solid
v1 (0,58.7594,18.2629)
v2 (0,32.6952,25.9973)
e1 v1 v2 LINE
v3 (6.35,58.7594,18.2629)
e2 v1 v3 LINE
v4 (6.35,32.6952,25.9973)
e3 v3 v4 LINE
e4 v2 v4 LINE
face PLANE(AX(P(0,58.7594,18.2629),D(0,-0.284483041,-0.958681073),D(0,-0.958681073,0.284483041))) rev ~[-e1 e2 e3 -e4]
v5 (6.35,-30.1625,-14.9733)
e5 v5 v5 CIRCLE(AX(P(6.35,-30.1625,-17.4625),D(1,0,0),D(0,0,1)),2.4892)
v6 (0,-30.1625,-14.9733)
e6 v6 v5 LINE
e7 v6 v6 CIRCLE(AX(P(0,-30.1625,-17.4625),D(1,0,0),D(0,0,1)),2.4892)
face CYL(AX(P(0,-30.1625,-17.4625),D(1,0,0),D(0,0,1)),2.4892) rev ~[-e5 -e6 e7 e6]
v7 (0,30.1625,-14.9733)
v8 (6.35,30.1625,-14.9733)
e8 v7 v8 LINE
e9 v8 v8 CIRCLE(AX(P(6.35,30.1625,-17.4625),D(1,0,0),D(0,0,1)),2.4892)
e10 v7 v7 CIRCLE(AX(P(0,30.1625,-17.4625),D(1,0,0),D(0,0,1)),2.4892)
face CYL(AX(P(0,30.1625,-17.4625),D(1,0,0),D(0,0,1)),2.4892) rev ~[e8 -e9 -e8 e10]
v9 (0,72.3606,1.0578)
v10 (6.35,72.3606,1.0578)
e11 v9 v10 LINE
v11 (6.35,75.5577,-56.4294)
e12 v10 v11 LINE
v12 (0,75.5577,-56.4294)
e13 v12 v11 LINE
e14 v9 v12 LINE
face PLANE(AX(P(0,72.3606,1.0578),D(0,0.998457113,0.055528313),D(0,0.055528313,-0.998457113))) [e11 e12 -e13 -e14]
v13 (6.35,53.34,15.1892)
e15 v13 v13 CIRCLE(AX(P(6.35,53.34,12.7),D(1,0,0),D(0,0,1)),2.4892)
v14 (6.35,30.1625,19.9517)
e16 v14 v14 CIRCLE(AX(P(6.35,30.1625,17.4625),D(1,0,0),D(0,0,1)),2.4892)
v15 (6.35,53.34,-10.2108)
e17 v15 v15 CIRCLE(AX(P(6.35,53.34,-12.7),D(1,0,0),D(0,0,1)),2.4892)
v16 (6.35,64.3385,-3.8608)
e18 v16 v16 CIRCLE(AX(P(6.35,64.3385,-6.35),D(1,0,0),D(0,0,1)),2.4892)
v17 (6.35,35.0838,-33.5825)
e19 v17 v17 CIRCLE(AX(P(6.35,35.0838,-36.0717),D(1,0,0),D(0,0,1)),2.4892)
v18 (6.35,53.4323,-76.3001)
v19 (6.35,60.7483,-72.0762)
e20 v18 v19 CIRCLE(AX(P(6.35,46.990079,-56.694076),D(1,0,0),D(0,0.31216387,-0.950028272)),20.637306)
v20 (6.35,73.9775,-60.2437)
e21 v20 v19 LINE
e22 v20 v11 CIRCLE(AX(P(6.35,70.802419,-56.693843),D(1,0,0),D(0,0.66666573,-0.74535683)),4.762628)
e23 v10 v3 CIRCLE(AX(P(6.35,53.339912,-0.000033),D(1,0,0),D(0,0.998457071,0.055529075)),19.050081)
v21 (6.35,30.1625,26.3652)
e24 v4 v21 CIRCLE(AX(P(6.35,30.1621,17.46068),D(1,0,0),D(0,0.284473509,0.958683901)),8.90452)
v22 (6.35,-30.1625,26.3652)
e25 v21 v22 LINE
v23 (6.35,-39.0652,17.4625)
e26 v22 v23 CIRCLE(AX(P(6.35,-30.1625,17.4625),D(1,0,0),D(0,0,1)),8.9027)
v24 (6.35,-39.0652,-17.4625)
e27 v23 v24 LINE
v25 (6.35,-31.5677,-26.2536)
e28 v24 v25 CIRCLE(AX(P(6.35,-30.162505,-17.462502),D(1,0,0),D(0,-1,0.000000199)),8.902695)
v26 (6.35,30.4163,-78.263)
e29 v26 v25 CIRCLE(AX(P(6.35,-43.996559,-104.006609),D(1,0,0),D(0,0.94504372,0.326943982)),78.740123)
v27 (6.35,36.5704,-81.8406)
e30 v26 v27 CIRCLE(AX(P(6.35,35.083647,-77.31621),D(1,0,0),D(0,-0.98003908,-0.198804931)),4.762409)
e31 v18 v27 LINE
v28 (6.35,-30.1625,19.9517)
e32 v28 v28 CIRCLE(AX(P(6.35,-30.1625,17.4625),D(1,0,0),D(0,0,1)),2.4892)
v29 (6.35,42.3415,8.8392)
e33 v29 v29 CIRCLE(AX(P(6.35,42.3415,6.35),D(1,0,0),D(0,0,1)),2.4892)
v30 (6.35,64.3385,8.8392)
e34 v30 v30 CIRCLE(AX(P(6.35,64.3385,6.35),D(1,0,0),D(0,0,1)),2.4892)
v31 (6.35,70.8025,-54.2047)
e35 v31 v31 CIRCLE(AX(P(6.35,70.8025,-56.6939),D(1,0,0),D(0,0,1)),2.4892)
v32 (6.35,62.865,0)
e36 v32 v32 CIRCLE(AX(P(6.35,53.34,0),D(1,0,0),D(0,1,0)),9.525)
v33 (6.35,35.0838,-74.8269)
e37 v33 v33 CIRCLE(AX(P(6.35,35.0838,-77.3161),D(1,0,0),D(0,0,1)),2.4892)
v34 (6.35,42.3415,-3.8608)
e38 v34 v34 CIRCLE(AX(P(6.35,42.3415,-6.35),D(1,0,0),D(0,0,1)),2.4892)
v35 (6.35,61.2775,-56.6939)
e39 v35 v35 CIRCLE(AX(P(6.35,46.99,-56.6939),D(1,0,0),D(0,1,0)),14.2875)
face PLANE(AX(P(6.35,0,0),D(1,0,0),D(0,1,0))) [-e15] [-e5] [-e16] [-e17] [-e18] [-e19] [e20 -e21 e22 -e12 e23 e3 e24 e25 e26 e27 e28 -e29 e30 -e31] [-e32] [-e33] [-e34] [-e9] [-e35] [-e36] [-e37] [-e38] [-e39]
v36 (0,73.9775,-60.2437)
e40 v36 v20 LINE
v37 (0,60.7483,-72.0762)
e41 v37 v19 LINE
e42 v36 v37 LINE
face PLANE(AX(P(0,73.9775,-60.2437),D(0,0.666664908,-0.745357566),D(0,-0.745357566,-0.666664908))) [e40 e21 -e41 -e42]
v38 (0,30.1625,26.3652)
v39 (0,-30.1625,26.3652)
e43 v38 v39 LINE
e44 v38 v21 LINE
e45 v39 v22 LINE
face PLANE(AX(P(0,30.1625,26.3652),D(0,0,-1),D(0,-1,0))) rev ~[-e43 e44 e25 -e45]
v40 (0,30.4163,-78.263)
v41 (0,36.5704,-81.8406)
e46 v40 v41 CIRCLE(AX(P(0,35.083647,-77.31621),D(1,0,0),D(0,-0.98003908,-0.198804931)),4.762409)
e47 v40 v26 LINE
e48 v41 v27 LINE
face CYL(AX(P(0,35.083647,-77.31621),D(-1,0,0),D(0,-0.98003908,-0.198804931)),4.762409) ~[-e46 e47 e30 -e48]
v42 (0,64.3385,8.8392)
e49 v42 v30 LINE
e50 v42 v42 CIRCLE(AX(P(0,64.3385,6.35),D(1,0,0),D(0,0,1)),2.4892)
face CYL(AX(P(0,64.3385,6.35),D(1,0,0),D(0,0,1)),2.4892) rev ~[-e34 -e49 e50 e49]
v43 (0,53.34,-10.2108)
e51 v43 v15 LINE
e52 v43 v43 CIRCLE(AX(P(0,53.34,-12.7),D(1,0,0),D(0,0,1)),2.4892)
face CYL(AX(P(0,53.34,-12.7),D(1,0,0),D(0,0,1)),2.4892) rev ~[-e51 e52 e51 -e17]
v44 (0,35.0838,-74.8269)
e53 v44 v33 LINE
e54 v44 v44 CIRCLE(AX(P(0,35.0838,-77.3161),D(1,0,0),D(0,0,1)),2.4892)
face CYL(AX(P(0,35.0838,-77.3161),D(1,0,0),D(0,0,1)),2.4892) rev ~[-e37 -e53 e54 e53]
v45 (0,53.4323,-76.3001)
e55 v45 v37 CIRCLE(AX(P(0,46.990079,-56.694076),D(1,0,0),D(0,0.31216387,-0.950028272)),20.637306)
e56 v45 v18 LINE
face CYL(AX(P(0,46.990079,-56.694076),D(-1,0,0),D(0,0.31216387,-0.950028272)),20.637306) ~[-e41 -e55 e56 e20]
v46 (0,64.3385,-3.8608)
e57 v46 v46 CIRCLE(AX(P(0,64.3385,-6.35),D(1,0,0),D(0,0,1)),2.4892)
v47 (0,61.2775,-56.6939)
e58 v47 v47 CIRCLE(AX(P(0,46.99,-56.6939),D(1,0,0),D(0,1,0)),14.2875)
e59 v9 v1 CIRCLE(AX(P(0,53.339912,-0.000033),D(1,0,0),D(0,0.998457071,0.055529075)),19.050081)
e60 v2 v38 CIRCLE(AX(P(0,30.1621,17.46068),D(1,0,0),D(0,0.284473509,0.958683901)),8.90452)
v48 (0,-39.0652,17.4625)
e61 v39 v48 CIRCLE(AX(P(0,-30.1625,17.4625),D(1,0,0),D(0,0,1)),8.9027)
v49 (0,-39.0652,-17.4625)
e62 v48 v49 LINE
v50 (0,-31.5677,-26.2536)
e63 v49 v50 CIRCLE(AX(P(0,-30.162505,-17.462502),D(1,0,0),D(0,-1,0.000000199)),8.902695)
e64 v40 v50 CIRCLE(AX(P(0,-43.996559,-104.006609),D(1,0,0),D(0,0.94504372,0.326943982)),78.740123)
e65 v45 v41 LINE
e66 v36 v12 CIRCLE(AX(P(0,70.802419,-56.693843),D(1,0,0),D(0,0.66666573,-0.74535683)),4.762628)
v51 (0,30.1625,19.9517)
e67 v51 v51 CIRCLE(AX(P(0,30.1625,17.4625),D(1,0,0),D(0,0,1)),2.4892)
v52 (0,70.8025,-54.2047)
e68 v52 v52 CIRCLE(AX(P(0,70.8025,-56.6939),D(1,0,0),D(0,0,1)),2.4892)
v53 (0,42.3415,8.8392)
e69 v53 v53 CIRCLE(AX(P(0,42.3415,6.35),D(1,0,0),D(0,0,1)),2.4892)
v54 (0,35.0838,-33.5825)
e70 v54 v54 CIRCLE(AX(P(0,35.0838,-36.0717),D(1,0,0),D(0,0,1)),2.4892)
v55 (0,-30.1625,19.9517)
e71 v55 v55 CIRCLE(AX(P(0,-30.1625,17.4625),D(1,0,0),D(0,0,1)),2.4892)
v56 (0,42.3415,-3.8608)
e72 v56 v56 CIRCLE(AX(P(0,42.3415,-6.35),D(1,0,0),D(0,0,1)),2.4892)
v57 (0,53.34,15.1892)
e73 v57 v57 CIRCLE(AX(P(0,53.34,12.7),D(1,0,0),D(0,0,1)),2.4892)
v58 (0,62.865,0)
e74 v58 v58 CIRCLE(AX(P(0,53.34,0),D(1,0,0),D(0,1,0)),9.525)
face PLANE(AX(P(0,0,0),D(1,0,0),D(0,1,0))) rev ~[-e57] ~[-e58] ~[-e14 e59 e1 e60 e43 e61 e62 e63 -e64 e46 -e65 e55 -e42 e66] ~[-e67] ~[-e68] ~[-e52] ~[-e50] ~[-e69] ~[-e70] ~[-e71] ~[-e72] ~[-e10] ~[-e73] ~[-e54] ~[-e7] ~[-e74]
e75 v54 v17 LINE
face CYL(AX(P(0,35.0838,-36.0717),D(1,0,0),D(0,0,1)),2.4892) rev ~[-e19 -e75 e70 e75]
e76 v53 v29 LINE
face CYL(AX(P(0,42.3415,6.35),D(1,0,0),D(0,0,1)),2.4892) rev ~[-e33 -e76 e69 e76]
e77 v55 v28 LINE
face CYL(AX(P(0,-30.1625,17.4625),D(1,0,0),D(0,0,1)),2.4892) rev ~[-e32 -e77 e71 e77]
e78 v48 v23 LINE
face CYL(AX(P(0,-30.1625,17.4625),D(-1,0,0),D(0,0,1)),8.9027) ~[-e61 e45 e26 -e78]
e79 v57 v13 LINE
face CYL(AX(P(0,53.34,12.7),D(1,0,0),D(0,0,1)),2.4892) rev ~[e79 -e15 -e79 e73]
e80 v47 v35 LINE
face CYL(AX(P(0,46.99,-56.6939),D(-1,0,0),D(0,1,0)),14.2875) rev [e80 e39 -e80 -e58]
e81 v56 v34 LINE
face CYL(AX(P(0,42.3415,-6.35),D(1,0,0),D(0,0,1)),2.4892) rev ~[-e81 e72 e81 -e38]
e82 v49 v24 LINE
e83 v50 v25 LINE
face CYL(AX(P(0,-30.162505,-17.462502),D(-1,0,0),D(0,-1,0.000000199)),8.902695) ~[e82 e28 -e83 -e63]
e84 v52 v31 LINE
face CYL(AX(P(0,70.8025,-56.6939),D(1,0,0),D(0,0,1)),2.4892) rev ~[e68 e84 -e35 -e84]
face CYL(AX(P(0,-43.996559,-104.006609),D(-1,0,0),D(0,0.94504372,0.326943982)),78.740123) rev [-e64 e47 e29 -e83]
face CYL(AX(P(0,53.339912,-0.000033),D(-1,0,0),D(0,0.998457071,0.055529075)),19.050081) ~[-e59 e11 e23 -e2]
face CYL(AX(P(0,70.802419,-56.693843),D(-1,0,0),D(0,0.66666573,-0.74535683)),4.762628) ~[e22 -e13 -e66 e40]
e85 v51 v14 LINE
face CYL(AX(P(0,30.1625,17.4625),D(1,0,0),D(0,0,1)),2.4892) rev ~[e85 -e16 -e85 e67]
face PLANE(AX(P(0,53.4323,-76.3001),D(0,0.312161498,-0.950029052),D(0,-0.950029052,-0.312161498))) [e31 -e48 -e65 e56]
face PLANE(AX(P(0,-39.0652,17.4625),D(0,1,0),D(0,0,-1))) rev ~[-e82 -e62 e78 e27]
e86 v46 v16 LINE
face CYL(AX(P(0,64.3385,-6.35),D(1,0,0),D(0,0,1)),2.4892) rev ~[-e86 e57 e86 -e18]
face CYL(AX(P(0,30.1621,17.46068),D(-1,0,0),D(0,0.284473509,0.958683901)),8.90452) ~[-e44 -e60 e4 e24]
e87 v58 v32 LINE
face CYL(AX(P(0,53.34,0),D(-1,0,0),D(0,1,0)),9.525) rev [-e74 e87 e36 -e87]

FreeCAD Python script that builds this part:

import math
import FreeCAD as App
import Part
import Sketcher

V = App.Vector
Q = App.Units.Quantity

doc = App.newDocument("Part")
body = doc.addObject("PartDesign::Body", "Body")

# Sketch on YZ plane
sketch1 = body.newObject("Sketcher::SketchObject", "Sketch")
sketch1.AttachmentSupport = (doc.getObject("YZ_Plane"), [""])
sketch1.MapMode = "FlatFace"
sketch1.addGeometry([
    Part.ArcOfCircle(Part.Circle(V(53.34, 0, 0), V(0, 0, 1), 19.05), math.radians(3.183133), math.radians(73.472077)),  # 0
    Part.LineSegment(V(58.7594, 18.2629, 0), V(32.6952, 25.9973, 0)),  # 1
    Part.ArcOfCircle(Part.Circle(V(30.1621, 17.46068, 0), V(0, 0, 1), 8.90452), math.radians(73.47262), math.radians(89.997427)),  # 2
    Part.LineSegment(V(30.1625, 26.3652, 0), V(-30.1625, 26.3652, 0)),  # 3
    Part.ArcOfCircle(Part.Circle(V(-30.1625, 17.4625, 0), V(0, 0, 1), 8.9027), math.radians(90), math.radians(180)),  # 4
    Part.LineSegment(V(-39.0652, 17.4625, 0), V(-39.0652, -17.4625, 0)),  # 5
    Part.ArcOfCircle(Part.Circle(V(-30.1625, -17.4625, 0), V(0, 0, 1), 8.9027), math.radians(180), math.radians(260.918467)),  # 6
    Part.ArcOfCircle(Part.Circle(V(-43.9964, -104.0065, 0), V(0, 0, 1), 78.739937), math.radians(19.083355), math.radians(80.918176)),  # 7
    Part.ArcOfCircle(Part.Circle(V(35.0838, -77.3161, 0), V(0, 0, 1), 4.7625), math.radians(-168.53199), math.radians(-71.811199)),  # 8
    Part.LineSegment(V(36.5704, -81.8406, 0), V(53.4323, -76.3001, 0)),  # 9
    Part.ArcOfCircle(Part.Circle(V(46.99, -56.6939, 0), V(0, 0, 1), 20.637498), math.radians(-71.810261), math.radians(-48.189783)),  # 10
    Part.LineSegment(V(60.7483, -72.0762, 0), V(73.9775, -60.2437, 0)),  # 11
    Part.ArcOfCircle(Part.Circle(V(70.8025, -56.6939, 0), V(0, 0, 1), 4.762531), math.radians(-48.190023), math.radians(3.183701)),  # 12
    Part.LineSegment(V(75.5577, -56.4294, 0), V(72.3606, 1.0578, 0)),  # 13
    Part.Circle(V(46.99, -56.6939, 0), V(0, 0, 1), 14.2875),  # 14
    Part.Circle(V(53.34, 0, 0), V(0, 0, 1), 9.525),  # 15
], False)
sketch1.addConstraint([
    Sketcher.Constraint("Tangent", 0, 2, 1, 1),
    Sketcher.Constraint("Tangent", 1, 2, 2, 1),
    Sketcher.Constraint("Tangent", 2, 2, 3, 1),
    Sketcher.Constraint("Tangent", 3, 2, 4, 1),
    Sketcher.Constraint("Tangent", 4, 2, 5, 1),
    Sketcher.Constraint("Tangent", 5, 2, 6, 1),
    Sketcher.Constraint("Tangent", 6, 2, 7, 2),
    Sketcher.Constraint("Coincident", 7, 1, 8, 1),
    Sketcher.Constraint("Tangent", 8, 2, 9, 1),
    Sketcher.Constraint("Tangent", 9, 2, 10, 1),
    Sketcher.Constraint("Tangent", 10, 2, 11, 1),
    Sketcher.Constraint("Tangent", 11, 2, 12, 1),
    Sketcher.Constraint("Tangent", 12, 2, 13, 1),
    Sketcher.Constraint("Tangent", 13, 2, 0, 1),
    Sketcher.Constraint("Horizontal", 3),
    Sketcher.Constraint("Vertical", 5),
    Sketcher.Constraint("Coincident", 14, 3, 10, 3),
    Sketcher.Constraint("Coincident", 15, 3, 0, 3),
    Sketcher.Constraint("Equal", 4, 6),
    Sketcher.Constraint("Equal", 8, 12),
    Sketcher.Constraint("PointOnObject", 0, 3, -1),
    Sketcher.Constraint("Horizontal", 10, 3, 12, 3),
    Sketcher.Constraint("Equal", 9, 11),
    Sketcher.Constraint("Radius", 7, Q("3.1 in")),
    Sketcher.Constraint("Diameter", 15, Q("0.75 in")),
    Sketcher.Constraint("Radius", 0, Q("0.75 in")),
    Sketcher.Constraint("Diameter", 14, Q("1.125 in")),
    Sketcher.Constraint("Radius", 8, Q("0.1875 in")),
    Sketcher.Constraint("DistanceX", 10, 3, 0, 3, Q("0.25 in")),
    Sketcher.Constraint("Radius", 10, Q("0.8125 in")),
    Sketcher.Constraint("DistanceX", -1, 1, 0, 3, Q("2.1 in")),
    Sketcher.Constraint("Radius", 4, Q("0.3505 in")),
    Sketcher.Constraint("DistanceX", 3, 2, 3, 1, Q("2.375 in")),
    Sketcher.Constraint("DistanceY", 5, 2, 5, 1, Q("1.375 in")),
    Sketcher.Constraint("Angle", 9, Q("18.1895 deg")),
    Sketcher.Constraint("Angle", 11, Q("41.8102 deg")),
    Sketcher.Constraint("Radius", 2, Q("8.9045 mm")),
    Sketcher.Constraint("DistanceX", 7, 1, 12, 3, Q("1.59 in")),
    Sketcher.Constraint("DistanceX", 4, 3, -1, 1, Q("1.1875 in")),
    Sketcher.Constraint("DistanceY", -1, 1, 4, 3, Q("0.6875 in")),
    Sketcher.Constraint("DistanceY", 11, 2, -1, 1, Q("2.3718 in")),
])
pad1 = body.newObject("PartDesign::Pad", "Pad")
pad1.Profile = sketch1
pad1.Length = Q("0.25 in")

# Sketch on YZ plane
sketch2 = body.newObject("Sketcher::SketchObject", "Sketch001")
sketch2.AttachmentSupport = (doc.getObject("YZ_Plane"), [""])
sketch2.MapMode = "FlatFace"
sketch2.addGeometry([
    Part.Circle(V(-30.1625, -17.4625, 0), V(0, 0, 1), 2.4892),  # 0
    Part.Circle(V(30.1625, -17.4625, 0), V(0, 0, 1), 2.4892),  # 1
    Part.Circle(V(-30.1625, 17.4625, 0), V(0, 0, 1), 2.4892),  # 2
    Part.Circle(V(30.1625, 17.4625, 0), V(0, 0, 1), 2.4892),  # 3
    Part.Circle(V(0, -76.2, 0), V(0, 0, 1), 2.4892),  # 4
    Part.Circle(V(64.3385, -6.35, 0), V(0, 0, 1), 2.4892),  # 5
    Part.Circle(V(64.3385, 6.35, 0), V(0, 0, 1), 2.4892),  # 6
    Part.Circle(V(53.34, 12.7, 0), V(0, 0, 1), 2.4892),  # 7
    Part.Circle(V(42.3415, 6.35, 0), V(0, 0, 1), 2.4892),  # 8
    Part.Circle(V(42.3415, -6.35, 0), V(0, 0, 1), 2.4892),  # 9
    Part.Circle(V(53.34, -12.7, 0), V(0, 0, 1), 2.4892),  # 10
], False)
sketch2.addConstraint([
    Sketcher.Constraint("Equal", 0, 1),
    Sketcher.Constraint("Equal", 1, 2),
    Sketcher.Constraint("Equal", 2, 3),
    Sketcher.Constraint("Equal", 3, 4),
    Sketcher.Constraint("Equal", 4, 5),
    Sketcher.Constraint("Equal", 5, 6),
    Sketcher.Constraint("Equal", 6, 7),
    Sketcher.Constraint("Equal", 7, 8),
    Sketcher.Constraint("Equal", 8, 9),
    Sketcher.Constraint("Equal", 9, 10),
    Sketcher.Constraint("Symmetric", 1, 3, 2, 3, -1, 1),
    Sketcher.Constraint("Symmetric", 0, 3, 3, 3, -1, 1),
    Sketcher.Constraint("Symmetric", 0, 3, 1, 3, -2),
    Sketcher.Constraint("Symmetric", 5, 3, 6, 3, -1),
    Sketcher.Constraint("Symmetric", 8, 3, 9, 3, -1),
    Sketcher.Constraint("Symmetric", 7, 3, 10, 3, -1),
    Sketcher.Constraint("PointOnObject", 4, 3, -2),
    Sketcher.Constraint("Horizontal", 6, 3, 8, 3),
    Sketcher.Constraint("Diameter", 0, Q("0.196 in")),
    Sketcher.Constraint("DistanceY", 4, 3, -1, 1, Q("3 in")),
    Sketcher.Constraint("DistanceX", -1, 1, 7, 3, Q("2.1 in")),
    Sketcher.Constraint("DistanceY", -1, 1, 7, 3, Q("0.5 in")),
    Sketcher.Constraint("DistanceY", 5, 3, 6, 3, Q("0.5 in")),
    Sketcher.Constraint("DistanceX", 0, 3, -1, 1, Q("1.1875 in")),
    Sketcher.Constraint("DistanceY", 0, 3, -1, 1, Q("0.6875 in")),
    Sketcher.Constraint("DistanceX", -1, 1, 5, 3, Q("2.533 in")),
    Sketcher.Constraint("DistanceX", -1, 1, 8, 3, Q("1.667 in")),
])
doc.recompute()
hole = body.newObject("PartDesign::Hole", "Hole")
hole.Profile = sketch2
hole.ThreadType = "None"
hole.Diameter = Q("0.196 in")
hole.DepthType = "ThroughAll"
hole.Reversed = True

# Sketch on YZ plane
sketch3 = body.newObject("Sketcher::SketchObject", "Sketch002")
sketch3.AttachmentSupport = (doc.getObject("YZ_Plane"), [""])
sketch3.MapMode = "FlatFace"
sketch3.addGeometry([
    Part.Circle(V(70.8025, -56.6939, 0), V(0, 0, 1), 2.4892),
    Part.Circle(V(35.0838, -36.0717, 0), V(0, 0, 1), 2.4892),
    Part.Circle(V(35.0838, -77.3161, 0), V(0, 0, 1), 2.4892),
], False)
sketch3.addConstraint([
    Sketcher.Constraint("Equal", 0, 1),
    Sketcher.Constraint("Equal", 1, 2),
    Sketcher.Constraint("Vertical", 1, 3, 2, 3),
    Sketcher.Constraint("Diameter", 0, Q("0.196 in")),
    Sketcher.Constraint("DistanceX", 1, 3, 0, 3, Q("1.406248 in")),
    Sketcher.Constraint("DistanceX", -1, 1, 0, 3, Q("2.7875 in")),
    Sketcher.Constraint("DistanceY", 0, 3, 1, 3, Q("0.8119 in")),
    Sketcher.Constraint("DistanceY", 2, 3, 1, 3, Q("1.6238 in")),
    Sketcher.Constraint("DistanceY", 0, 3, -1, 1, Q("56.694 mm")),
])
doc.recompute()
hole2 = body.newObject("PartDesign::Hole", "Hole001")
hole2.Profile = sketch3
hole2.ThreadType = "None"
hole2.Diameter = Q("0.196 in")
hole2.DepthType = "ThroughAll"
hole2.Reversed = True

doc.recompute()
